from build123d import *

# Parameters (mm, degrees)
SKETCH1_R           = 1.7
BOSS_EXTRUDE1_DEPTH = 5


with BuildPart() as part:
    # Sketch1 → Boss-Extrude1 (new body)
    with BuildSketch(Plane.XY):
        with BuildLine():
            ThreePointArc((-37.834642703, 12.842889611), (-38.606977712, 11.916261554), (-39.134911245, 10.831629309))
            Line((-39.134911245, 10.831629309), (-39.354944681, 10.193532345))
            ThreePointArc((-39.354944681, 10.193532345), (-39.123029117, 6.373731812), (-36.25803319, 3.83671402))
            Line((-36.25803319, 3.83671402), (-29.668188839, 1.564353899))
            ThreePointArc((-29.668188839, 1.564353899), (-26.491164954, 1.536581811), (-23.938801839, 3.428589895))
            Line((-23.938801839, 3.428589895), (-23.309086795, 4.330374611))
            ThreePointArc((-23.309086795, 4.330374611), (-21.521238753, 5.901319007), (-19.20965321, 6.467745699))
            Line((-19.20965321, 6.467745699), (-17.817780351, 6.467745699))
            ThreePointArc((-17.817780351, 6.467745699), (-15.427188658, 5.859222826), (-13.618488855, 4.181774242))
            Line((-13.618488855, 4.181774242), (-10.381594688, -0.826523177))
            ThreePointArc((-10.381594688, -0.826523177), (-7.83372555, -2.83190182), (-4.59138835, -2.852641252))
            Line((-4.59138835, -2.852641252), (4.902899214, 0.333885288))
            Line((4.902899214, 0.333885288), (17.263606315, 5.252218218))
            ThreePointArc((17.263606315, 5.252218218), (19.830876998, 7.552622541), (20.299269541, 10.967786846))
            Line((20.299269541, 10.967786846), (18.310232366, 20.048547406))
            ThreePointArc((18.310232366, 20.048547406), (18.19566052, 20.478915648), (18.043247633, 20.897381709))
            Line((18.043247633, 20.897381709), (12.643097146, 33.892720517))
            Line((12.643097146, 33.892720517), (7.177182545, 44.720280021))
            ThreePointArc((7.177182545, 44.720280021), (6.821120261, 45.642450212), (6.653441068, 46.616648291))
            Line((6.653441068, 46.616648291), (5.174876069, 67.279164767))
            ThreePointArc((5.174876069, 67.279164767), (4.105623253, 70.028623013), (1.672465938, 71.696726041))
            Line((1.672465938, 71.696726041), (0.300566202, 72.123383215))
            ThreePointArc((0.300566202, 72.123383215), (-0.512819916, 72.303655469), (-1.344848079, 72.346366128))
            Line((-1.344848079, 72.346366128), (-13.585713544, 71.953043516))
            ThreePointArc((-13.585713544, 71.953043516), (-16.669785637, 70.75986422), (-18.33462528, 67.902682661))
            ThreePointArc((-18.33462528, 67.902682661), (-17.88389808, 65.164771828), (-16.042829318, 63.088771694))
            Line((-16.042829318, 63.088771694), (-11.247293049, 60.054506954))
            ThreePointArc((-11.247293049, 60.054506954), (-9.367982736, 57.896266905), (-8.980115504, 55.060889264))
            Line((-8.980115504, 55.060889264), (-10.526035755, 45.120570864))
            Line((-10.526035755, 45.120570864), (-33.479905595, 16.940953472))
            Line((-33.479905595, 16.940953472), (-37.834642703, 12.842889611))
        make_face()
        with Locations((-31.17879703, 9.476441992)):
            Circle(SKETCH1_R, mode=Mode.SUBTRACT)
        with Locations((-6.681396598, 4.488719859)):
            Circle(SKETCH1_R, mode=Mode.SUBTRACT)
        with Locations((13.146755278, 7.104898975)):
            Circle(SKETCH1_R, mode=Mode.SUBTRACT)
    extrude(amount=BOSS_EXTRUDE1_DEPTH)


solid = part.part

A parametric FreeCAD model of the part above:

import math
import FreeCAD as App
import Part
import Sketcher

V = App.Vector

doc = App.newDocument("Part")
params = doc.addObject("Spreadsheet::Sheet", "Params")
for row, (alias, value) in enumerate([
    ("sketch1_radius", "5 mm"),
    ("sketch1_diameter", "3.4 mm"),
    ("pad1_length", "5 mm"),
], start=1):
    params.set(f"A{row}", alias)
    params.set(f"B{row}", "=" + value)
    params.setAlias(f"B{row}", alias)

body = doc.addObject("PartDesign::Body", "Body")

# Sketch on XY plane
sketch1 = body.newObject("Sketcher::SketchObject", "Sketch")
sketch1.AttachmentSupport = (doc.getObject("XY_Plane"), [""])
sketch1.MapMode = "FlatFace"
sketch1.addGeometry([
    Part.ArcOfCircle(Part.Circle(V(-34.408046, 9.201676, 0), V(0, 0, 1), 5), math.radians(133.260721), math.radians(160.974394)),  # 0
    Part.LineSegment(V(-39.134911, 10.831629, 0), V(-39.354945, 10.193532, 0)),  # 1
    Part.ArcOfCircle(Part.Circle(V(-34.62808, 8.563579, 0), V(0, 0, 1), 5), math.radians(160.974394), math.radians(250.974394)),  # 2
    Part.LineSegment(V(-36.258033, 3.836714, 0), V(-29.668189, 1.564354, 0)),  # 3
    Part.ArcOfCircle(Part.Circle(V(-28.038235, 6.291219, 0), V(0, 0, 1), 5), math.radians(-109.025606), math.radians(-34.926545)),  # 4
    Part.LineSegment(V(-23.938802, 3.42859, 0), V(-23.309087, 4.330375, 0)),  # 5
    Part.ArcOfCircle(Part.Circle(V(-19.209653, 1.467746, 0), V(0, 0, 1), 5), math.radians(90), math.radians(145.073455)),  # 6
    Part.LineSegment(V(-19.209653, 6.467746, 0), V(-17.81778, 6.467746, 0)),  # 7
    Part.ArcOfCircle(Part.Circle(V(-17.81778, 1.467746, 0), V(0, 0, 1), 5), math.radians(32.874841), math.radians(90)),  # 8
    Part.LineSegment(V(-13.618489, 4.181774, 0), V(-10.381595, -0.826523, 0)),  # 9
    Part.ArcOfCircle(Part.Circle(V(-6.182303, 1.887505, 0), V(0, 0, 1), 5), math.radians(-147.125159), math.radians(-71.446926)),  # 10
    Part.LineSegment(V(-4.591388, -2.852641, 0), V(4.902899, 0.333885, 0)),  # 11
    Part.LineSegment(V(4.902899, 0.333885, 0), V(17.263606, 5.252218, 0)),  # 12
    Part.ArcOfCircle(Part.Circle(V(15.415064, 9.897957, 0), V(0, 0, 1), 5), math.radians(-68.30236), math.radians(12.354867)),  # 13
    Part.LineSegment(V(20.29927, 10.967787, 0), V(18.310232, 20.048547, 0)),  # 14
    Part.ArcOfCircle(Part.Circle(V(13.426027, 18.978718, 0), V(0, 0, 1), 5), math.radians(12.354867), math.radians(22.565092)),  # 15
    Part.LineSegment(V(18.043248, 20.897382, 0), V(12.643097, 33.892721, 0)),  # 16
    Part.LineSegment(V(12.643097, 33.892721, 0), V(7.177183, 44.72028, 0)),  # 17
    Part.ArcOfCircle(Part.Circle(V(11.640689, 46.973525, 0), V(0, 0, 1), 5), math.radians(-175.907014), math.radians(-153.21467)),  # 18
    Part.LineSegment(V(6.653441, 46.616648, 0), V(5.174876, 67.279165, 0)),  # 19
    Part.ArcOfCircle(Part.Circle(V(0.187628, 66.922288, 0), V(0, 0, 1), 5), math.radians(4.092986), math.radians(72.724445)),  # 20
    Part.LineSegment(V(1.672466, 71.696726, 0), V(0.300566, 72.123383, 0)),  # 21
    Part.ArcOfCircle(Part.Circle(V(-1.184271, 67.348945, 0), V(0, 0, 1), 5), math.radians(72.724445), math.radians(91.840391)),  # 22
    Part.LineSegment(V(-1.344848, 72.346366, 0), V(-13.585714, 71.953044, 0)),  # 23
    Part.ArcOfCircle(Part.Circle(V(-13.425137, 66.955623, 0), V(0, 0, 1), 5), math.radians(91.840391), math.radians(169.081529)),  # 24
    Part.ArcOfCircle(Part.Circle(V(-13.369398, 67.314025, 0), V(0, 0, 1), 5), math.radians(173.238798), math.radians(237.677363)),  # 25
    Part.LineSegment(V(-16.042829, 63.088772, 0), V(-11.247293, 60.054507, 0)),  # 26
    Part.ArcOfCircle(Part.Circle(V(-13.920724, 55.829254, 0), V(0, 0, 1), 5), math.radians(-8.839836), math.radians(57.677363)),  # 27
    Part.LineSegment(V(-8.980116, 55.060889, 0), V(-10.526036, 45.120571, 0)),  # 28
    Part.LineSegment(V(-10.526036, 45.120571, 0), V(-33.479906, 16.940953, 0)),  # 29
    Part.LineSegment(V(-33.479906, 16.940953, 0), V(-37.834643, 12.84289, 0)),  # 30
    Part.Circle(V(-6.681397, 4.48872, 0), V(0, 0, 1), 1.7),  # 31
    Part.Circle(V(-31.178797, 9.476442, 0), V(0, 0, 1), 1.7),  # 32
    Part.Circle(V(13.146755, 7.104899, 0), V(0, 0, 1), 1.7),  # 33
], False)
sketch1.addConstraint([
    Sketcher.Constraint("Tangent", 0, 2, 1, 1),
    Sketcher.Constraint("Tangent", 1, 2, 2, 1),
    Sketcher.Constraint("Tangent", 2, 2, 3, 1),
    Sketcher.Constraint("Tangent", 3, 2, 4, 1),
    Sketcher.Constraint("Tangent", 4, 2, 5, 1),
    Sketcher.Constraint("Tangent", 5, 2, 6, 2),
    Sketcher.Constraint("Tangent", 6, 1, 7, 1),
    Sketcher.Constraint("Tangent", 7, 2, 8, 2),
    Sketcher.Constraint("Tangent", 8, 1, 9, 1),
    Sketcher.Constraint("Tangent", 9, 2, 10, 1),
    Sketcher.Constraint("Tangent", 10, 2, 11, 1),
    Sketcher.Constraint("Coincident", 11, 2, 12, 1),
    Sketcher.Constraint("Tangent", 12, 2, 13, 1),
    Sketcher.Constraint("Tangent", 13, 2, 14, 1),
    Sketcher.Constraint("Tangent", 14, 2, 15, 1),
    Sketcher.Constraint("Tangent", 15, 2, 16, 1),
    Sketcher.Constraint("Coincident", 16, 2, 17, 1),
    Sketcher.Constraint("Tangent", 17, 2, 18, 2),
    Sketcher.Constraint("Tangent", 18, 1, 19, 1),
    Sketcher.Constraint("Tangent", 19, 2, 20, 1),
    Sketcher.Constraint("Tangent", 20, 2, 21, 1),
    Sketcher.Constraint("Tangent", 21, 2, 22, 1),
    Sketcher.Constraint("Tangent", 22, 2, 23, 1),
    Sketcher.Constraint("Tangent", 23, 2, 24, 1),
    Sketcher.Constraint("Coincident", 24, 2, 25, 1),
    Sketcher.Constraint("Tangent", 25, 2, 26, 1),
    Sketcher.Constraint("Tangent", 26, 2, 27, 2),
    Sketcher.Constraint("Tangent", 27, 1, 28, 1),
    Sketcher.Constraint("Coincident", 28, 2, 29, 1),
    Sketcher.Constraint("Coincident", 29, 2, 30, 1),
    Sketcher.Constraint("Tangent", 30, 2, 0, 1),
    Sketcher.Constraint("Horizontal", 7),
    Sketcher.Constraint("Equal", 0, 2),
    Sketcher.Constraint("Equal", 2, 4),
    Sketcher.Constraint("Equal", 4, 6),
    Sketcher.Constraint("Equal", 6, 8),
    Sketcher.Constraint("Equal", 8, 10),
    Sketcher.Constraint("Equal", 10, 13),
    Sketcher.Constraint("Equal", 13, 15),
    Sketcher.Constraint("Equal", 15, 18),
    Sketcher.Constraint("Equal", 18, 20),
    Sketcher.Constraint("Equal", 20, 22),
    Sketcher.Constraint("Equal", 22, 24),
    Sketcher.Constraint("Equal", 24, 25),
    Sketcher.Constraint("Equal", 25, 27),
    Sketcher.Constraint("Equal", 31, 32),
    Sketcher.Constraint("Equal", 32, 33),
    Sketcher.Constraint("Perpendicular", 1, 3),
    Sketcher.Constraint("Radius", 0, 5.0),
    Sketcher.Constraint("Diameter", 31, 3.4),
    Sketcher.Constraint("DistanceY", -1, 1, 33, 3, 7.104899),
    Sketcher.Constraint("DistanceX", 4, 2, -1, 1, 23.938802),
    Sketcher.Constraint("DistanceX", -1, 1, 11, 2, 4.902899),
    Sketcher.Constraint("DistanceX", 2, 3, 8, 3, 16.810299),
    Sketcher.Constraint("DistanceX", 4, 3, 13, 3, 43.453299),
    Sketcher.Constraint("DistanceY", 4, 3, 15, 3, 12.687499),
    Sketcher.Constraint("DistanceX", 20, 3, 15, 3, 13.238398),
    Sketcher.Constraint("DistanceX", 22, 3, 20, 3, 1.3719),
    Sketcher.Constraint("DistanceY", 18, 3, 25, 3, 20.3405),
    Sketcher.Constraint("DistanceY", 31, 3, 4, 3, 1.802499),
    Sketcher.Constraint("DistanceX", 1, 2, 0, 3, 4.946898),
    Sketcher.Constraint("DistanceX", 9, 2, 31, 3, 3.700198),
    Sketcher.Constraint("DistanceX", 8, 1, 10, 2, 9.027101),
    Sketcher.Constraint("DistanceY", 12, 2, 15, 3, 13.7265),
    Sketcher.Constraint("DistanceY", 11, 2, 13, 2, 10.633902),
    Sketcher.Constraint("DistanceY", 25, 3, 20, 2, 4.382701),
    Sketcher.Constraint("DistanceY", 19, 2, 22, 2, 5.067201),
    Sketcher.Constraint("DistanceY", 22, 3, 23, 2, 4.604098),
    Sketcher.Constraint("DistanceX", 24, 2, 27, 3, 4.413901),
    Sketcher.Constraint("DistanceX", 1, 2, 30, 2, 1.520302),
    Sketcher.Constraint("Distance", 1, 0.674968),
    Sketcher.Constraint("Distance", 3, 6.970629),
    Sketcher.Constraint("Distance", 5, 1.099889),
    Sketcher.Constraint("Distance", 11, 10.014761),
    Sketcher.Constraint("Distance", 19, 20.71535),
    Sketcher.Constraint("Distance", 26, 5.674851),
    Sketcher.Constraint("Distance", 28, 10.059811),
    Sketcher.Constraint("DistanceX", 7, 1, 7, 2, 1.391873),
    Sketcher.Constraint("DistanceY", -1, 1, 2, 3, 8.563579),
    Sketcher.Constraint("DistanceX", -1, 1, 18, 3, 11.640689),
    Sketcher.Constraint("DistanceY", -1, 1, 20, 3, 66.922288),
    Sketcher.Constraint("DistanceY", -1, 1, 32, 3, 9.476442),
    Sketcher.Constraint("DistanceY", -1, 1, 15, 2, 20.897382),
    Sketcher.Constraint("DistanceY", -1, 1, 16, 2, 33.892721),
    Sketcher.Constraint("DistanceX", 25, 2, -1, 1, 16.042829),
    Sketcher.Constraint("DistanceY", -1, 1, 25, 2, 63.088772),
    Sketcher.Constraint("DistanceY", -1, 1, 27, 1, 55.060889),
    Sketcher.Constraint("DistanceX", 0, 3, 32, 3, 3.229249),
    Sketcher.Constraint("DistanceX", 33, 3, 13, 3, 2.268309),
    Sketcher.Constraint("DistanceX", 0, 3, 29, 2, 0.928141),
])
sketch1.setExpression("Constraints[48]", "Params.sketch1_radius")
sketch1.setExpression("Constraints[49]", "Params.sketch1_diameter")
pad1 = body.newObject("PartDesign::Pad", "Pad")
pad1.Profile = sketch1
pad1.setExpression("Length", "Params.pad1_length")

doc.recompute()
